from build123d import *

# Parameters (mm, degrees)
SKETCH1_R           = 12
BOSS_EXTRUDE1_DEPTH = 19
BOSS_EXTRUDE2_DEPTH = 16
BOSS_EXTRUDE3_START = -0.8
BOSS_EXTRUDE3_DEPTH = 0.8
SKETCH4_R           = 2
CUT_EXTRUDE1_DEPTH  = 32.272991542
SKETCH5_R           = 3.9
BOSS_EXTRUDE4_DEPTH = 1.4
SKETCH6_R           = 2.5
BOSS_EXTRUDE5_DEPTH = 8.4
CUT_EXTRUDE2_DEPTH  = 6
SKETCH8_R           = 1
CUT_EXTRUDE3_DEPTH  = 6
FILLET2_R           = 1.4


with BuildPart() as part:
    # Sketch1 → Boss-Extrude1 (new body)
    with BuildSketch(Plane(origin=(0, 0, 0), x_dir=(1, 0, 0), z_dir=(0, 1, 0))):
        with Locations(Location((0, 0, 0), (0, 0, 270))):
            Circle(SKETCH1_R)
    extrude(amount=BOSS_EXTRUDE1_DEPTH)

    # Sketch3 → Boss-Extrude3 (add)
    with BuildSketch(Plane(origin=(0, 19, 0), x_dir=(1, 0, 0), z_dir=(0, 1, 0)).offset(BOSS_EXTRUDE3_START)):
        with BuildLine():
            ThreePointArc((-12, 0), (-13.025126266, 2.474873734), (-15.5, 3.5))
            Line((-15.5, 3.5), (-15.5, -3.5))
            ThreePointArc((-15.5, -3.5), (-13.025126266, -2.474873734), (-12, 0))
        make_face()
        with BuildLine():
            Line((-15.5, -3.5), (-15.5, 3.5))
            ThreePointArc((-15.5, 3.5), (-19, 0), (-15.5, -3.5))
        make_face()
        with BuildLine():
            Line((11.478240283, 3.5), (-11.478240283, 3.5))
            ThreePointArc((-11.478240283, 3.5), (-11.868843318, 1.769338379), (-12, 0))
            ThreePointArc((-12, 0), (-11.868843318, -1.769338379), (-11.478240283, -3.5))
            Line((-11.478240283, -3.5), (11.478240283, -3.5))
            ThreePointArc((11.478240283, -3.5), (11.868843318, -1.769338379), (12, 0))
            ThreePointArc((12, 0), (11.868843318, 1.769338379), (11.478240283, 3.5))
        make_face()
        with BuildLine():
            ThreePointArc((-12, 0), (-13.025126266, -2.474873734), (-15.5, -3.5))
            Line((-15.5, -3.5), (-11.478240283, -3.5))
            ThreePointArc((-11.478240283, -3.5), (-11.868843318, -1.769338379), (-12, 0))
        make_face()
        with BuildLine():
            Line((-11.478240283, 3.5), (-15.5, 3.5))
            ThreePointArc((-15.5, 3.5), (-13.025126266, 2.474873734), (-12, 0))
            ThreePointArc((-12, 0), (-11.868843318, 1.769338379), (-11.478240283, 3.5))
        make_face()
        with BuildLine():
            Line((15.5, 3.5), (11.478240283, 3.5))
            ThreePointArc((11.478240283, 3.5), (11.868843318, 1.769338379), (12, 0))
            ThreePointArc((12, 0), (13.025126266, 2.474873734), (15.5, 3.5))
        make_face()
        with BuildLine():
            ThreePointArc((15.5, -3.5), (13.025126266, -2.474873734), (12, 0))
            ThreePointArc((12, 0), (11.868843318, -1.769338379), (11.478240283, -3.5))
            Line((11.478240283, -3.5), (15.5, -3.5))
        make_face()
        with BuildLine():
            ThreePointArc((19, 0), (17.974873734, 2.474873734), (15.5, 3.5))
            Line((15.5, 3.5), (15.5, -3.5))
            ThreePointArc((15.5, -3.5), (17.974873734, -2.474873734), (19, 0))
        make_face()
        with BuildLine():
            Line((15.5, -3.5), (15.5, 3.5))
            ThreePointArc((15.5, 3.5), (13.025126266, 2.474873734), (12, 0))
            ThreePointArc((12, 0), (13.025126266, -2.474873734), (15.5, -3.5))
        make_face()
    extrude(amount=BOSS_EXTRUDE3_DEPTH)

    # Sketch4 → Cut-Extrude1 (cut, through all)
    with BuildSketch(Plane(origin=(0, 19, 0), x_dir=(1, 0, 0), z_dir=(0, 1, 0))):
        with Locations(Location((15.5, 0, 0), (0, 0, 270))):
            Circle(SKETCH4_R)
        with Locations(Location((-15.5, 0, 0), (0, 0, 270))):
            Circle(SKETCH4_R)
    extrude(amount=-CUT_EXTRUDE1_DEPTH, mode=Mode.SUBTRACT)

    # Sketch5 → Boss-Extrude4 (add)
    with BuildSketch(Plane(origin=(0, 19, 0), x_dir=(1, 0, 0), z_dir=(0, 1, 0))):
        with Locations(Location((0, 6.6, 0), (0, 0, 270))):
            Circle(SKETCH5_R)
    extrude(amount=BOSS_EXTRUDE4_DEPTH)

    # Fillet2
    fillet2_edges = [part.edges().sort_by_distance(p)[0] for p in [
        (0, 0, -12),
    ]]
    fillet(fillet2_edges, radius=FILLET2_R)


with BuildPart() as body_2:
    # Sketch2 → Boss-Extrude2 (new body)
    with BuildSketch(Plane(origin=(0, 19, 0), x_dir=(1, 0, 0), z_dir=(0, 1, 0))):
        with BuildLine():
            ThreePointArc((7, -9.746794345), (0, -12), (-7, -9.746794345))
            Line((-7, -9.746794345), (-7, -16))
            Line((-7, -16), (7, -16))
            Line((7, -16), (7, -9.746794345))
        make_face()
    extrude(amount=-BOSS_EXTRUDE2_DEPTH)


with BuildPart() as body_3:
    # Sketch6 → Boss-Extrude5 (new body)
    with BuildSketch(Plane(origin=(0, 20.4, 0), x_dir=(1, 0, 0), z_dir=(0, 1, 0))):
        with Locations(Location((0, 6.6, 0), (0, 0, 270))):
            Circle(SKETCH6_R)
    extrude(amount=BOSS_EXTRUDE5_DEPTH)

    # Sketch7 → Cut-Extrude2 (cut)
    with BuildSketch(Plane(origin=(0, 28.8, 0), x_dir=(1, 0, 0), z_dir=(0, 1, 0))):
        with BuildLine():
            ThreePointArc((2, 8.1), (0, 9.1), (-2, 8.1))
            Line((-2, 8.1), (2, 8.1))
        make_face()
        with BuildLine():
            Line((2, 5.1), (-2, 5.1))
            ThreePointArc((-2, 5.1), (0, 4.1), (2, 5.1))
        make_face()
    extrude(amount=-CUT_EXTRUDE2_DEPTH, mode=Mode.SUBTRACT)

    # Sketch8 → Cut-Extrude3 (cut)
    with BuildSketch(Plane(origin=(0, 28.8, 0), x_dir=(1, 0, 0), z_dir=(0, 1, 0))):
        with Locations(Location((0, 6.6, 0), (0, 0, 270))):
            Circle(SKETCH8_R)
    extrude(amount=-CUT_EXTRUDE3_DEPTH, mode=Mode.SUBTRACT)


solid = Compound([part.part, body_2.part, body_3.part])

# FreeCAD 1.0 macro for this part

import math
import FreeCAD as App
import Part
import Sketcher


def edges_at(feature, points):
    """Names of the edges that pass closest to the given points."""
    edges = feature.Shape.Edges
    near = lambda p: min(range(len(edges)), key=lambda i: edges[i].distToShape(Part.Vertex(*p))[0])
    return sorted({f"Edge{near(p) + 1}" for p in points})

doc = App.newDocument("Part")
body = doc.addObject("PartDesign::Body", "Body")

# Sketch on XZ plane
sketch1 = body.newObject("Sketcher::SketchObject", "Sketch")
sketch1.AttachmentSupport = (doc.getObject("XZ_Plane"), [""])
sketch1.MapMode = "FlatFace"
sketch1.addGeometry(Part.Circle(App.Vector(0, 0, 0), App.Vector(0, 0, 1), 12), False)
sketch1.addConstraint(Sketcher.Constraint("Coincident", 0, 3, -1, 1))
sketch1.addConstraint(Sketcher.Constraint("Diameter", 0, 24.0))
pad1 = body.newObject("PartDesign::Pad", "Pad")
pad1.Profile = sketch1
pad1.Length = 19
pad1.Reversed = True

# Sketch on XZ plane
sketch2 = body.newObject("Sketcher::SketchObject", "Sketch001")
sketch2.AttachmentSupport = (doc.getObject("XZ_Plane"), [""])
sketch2.MapMode = "FlatFace"
sketch2.AttachmentOffset = App.Placement(App.Vector(0, 0, -18.2), App.Rotation())
sketch2.addGeometry(Part.LineSegment(App.Vector(-15.5, 3.5, 0), App.Vector(15.5, 3.5, 0)), False)
sketch2.addGeometry(Part.ArcOfCircle(Part.Circle(App.Vector(15.5, 0, 0), App.Vector(0, 0, 1), 3.5), math.radians(0), math.radians(90)), False)
sketch2.addGeometry(Part.ArcOfCircle(Part.Circle(App.Vector(15.5, 0, 0), App.Vector(0, 0, 1), 3.5), math.radians(-90), math.radians(0)), False)
sketch2.addGeometry(Part.LineSegment(App.Vector(15.5, -3.5, 0), App.Vector(-15.5, -3.5, 0)), False)
sketch2.addGeometry(Part.ArcOfCircle(Part.Circle(App.Vector(-15.5, 0, 0), App.Vector(0, 0, 1), 3.5), math.radians(90), math.radians(270)), False)
sketch2.addConstraint(Sketcher.Constraint("Tangent", 0, 2, 1, 2))
sketch2.addConstraint(Sketcher.Constraint("Tangent", 1, 1, 2, 2))
sketch2.addConstraint(Sketcher.Constraint("Tangent", 2, 1, 3, 1))
sketch2.addConstraint(Sketcher.Constraint("Tangent", 3, 2, 4, 2))
sketch2.addConstraint(Sketcher.Constraint("Tangent", 4, 1, 0, 1))
sketch2.addConstraint(Sketcher.Constraint("Horizontal", 0))
sketch2.addConstraint(Sketcher.Constraint("Horizontal", 3))
sketch2.addConstraint(Sketcher.Constraint("Equal", 1, 2))
sketch2.addConstraint(Sketcher.Constraint("Symmetric", 1, 3, 4, 3, -1, 1))
sketch2.addConstraint(Sketcher.Constraint("PointOnObject", 1, 1, -1))
sketch2.addConstraint(Sketcher.Constraint("Radius", 1, 3.5))
sketch2.addConstraint(Sketcher.Constraint("DistanceX", 0, 1, 0, 2, 31.0))
pad2 = body.newObject("PartDesign::Pad", "Pad001")
pad2.Profile = sketch2
pad2.Length = 0.8
pad2.Reversed = True

# Sketch on XZ plane
sketch3 = body.newObject("Sketcher::SketchObject", "Sketch002")
sketch3.AttachmentSupport = (doc.getObject("XZ_Plane"), [""])
sketch3.MapMode = "FlatFace"
sketch3.AttachmentOffset = App.Placement(App.Vector(0, 0, -19), App.Rotation())
sketch3.addGeometry(Part.Circle(App.Vector(15.5, 0, 0), App.Vector(0, 0, 1), 2), False)
sketch3.addGeometry(Part.Circle(App.Vector(-15.5, 0, 0), App.Vector(0, 0, 1), 2), False)
sketch3.addConstraint(Sketcher.Constraint("Equal", 0, 1))
sketch3.addConstraint(Sketcher.Constraint("Symmetric", 0, 3, 1, 3, -1, 1))
sketch3.addConstraint(Sketcher.Constraint("PointOnObject", 0, 3, -1))
sketch3.addConstraint(Sketcher.Constraint("Diameter", 0, 4.0))
sketch3.addConstraint(Sketcher.Constraint("DistanceX", 1, 3, 0, 3, 31.0))
pocket1 = body.newObject("PartDesign::Pocket", "Pocket")
pocket1.Profile = sketch3
pocket1.Type = "ThroughAll"
pocket1.Reversed = True

# Sketch on XZ plane
sketch4 = body.newObject("Sketcher::SketchObject", "Sketch003")
sketch4.AttachmentSupport = (doc.getObject("XZ_Plane"), [""])
sketch4.MapMode = "FlatFace"
sketch4.AttachmentOffset = App.Placement(App.Vector(0, 0, -19), App.Rotation())
sketch4.addGeometry(Part.Circle(App.Vector(0, -6.6, 0), App.Vector(0, 0, 1), 3.9), False)
sketch4.addConstraint(Sketcher.Constraint("PointOnObject", 0, 3, -2))
sketch4.addConstraint(Sketcher.Constraint("Diameter", 0, 7.8))
sketch4.addConstraint(Sketcher.Constraint("DistanceY", 0, 3, -1, 1, 6.6))
pad3 = body.newObject("PartDesign::Pad", "Pad002")
pad3.Profile = sketch4
pad3.Length = 1.4
pad3.Reversed = True
doc.recompute()

fillet = body.newObject("PartDesign::Fillet", "Fillet")
fillet.Base = (pad3, edges_at(pad3, [(0, 0, -12)]))
fillet.Radius = 1.4
body2 = doc.addObject("PartDesign::Body", "Body001")

# Sketch on XZ plane
sketch5 = body2.newObject("Sketcher::SketchObject", "Sketch004")
sketch5.AttachmentSupport = (doc.getObject("XZ_Plane001"), [""])
sketch5.MapMode = "FlatFace"
sketch5.AttachmentOffset = App.Placement(App.Vector(0, 0, -19), App.Rotation())
sketch5.addGeometry(Part.ArcOfCircle(Part.Circle(App.Vector(0, 0, 0), App.Vector(0, 0, 1), 12), math.radians(54), math.radians(126)), False)
sketch5.addGeometry(Part.LineSegment(App.Vector(-7, 10, 0), App.Vector(-7, 16, 0)), False)
sketch5.addGeometry(Part.LineSegment(App.Vector(-7, 16, 0), App.Vector(7, 16, 0)), False)
sketch5.addGeometry(Part.LineSegment(App.Vector(7, 16, 0), App.Vector(7, 10, 0)), False)
sketch5.addConstraint(Sketcher.Constraint("Coincident", 0, 2, 1, 1))
sketch5.addConstraint(Sketcher.Constraint("Coincident", 1, 2, 2, 1))
sketch5.addConstraint(Sketcher.Constraint("Coincident", 2, 2, 3, 1))
sketch5.addConstraint(Sketcher.Constraint("Coincident", 3, 2, 0, 1))
sketch5.addConstraint(Sketcher.Constraint("Vertical", 1))
sketch5.addConstraint(Sketcher.Constraint("Horizontal", 2))
sketch5.addConstraint(Sketcher.Constraint("Vertical", 3))
sketch5.addConstraint(Sketcher.Constraint("Coincident", 0, 3, -1, 1))
sketch5.addConstraint(Sketcher.Constraint("Horizontal", 0, 2, 3, 2))
sketch5.addConstraint(Sketcher.Constraint("Radius", 0, 12.0))
sketch5.addConstraint(Sketcher.Constraint("DistanceX", 2, 1, 2, 2, 14.0))
sketch5.addConstraint(Sketcher.Constraint("DistanceY", -1, 1, 1, 2, 16.0))
pad4 = body2.newObject("PartDesign::Pad", "Pad003")
pad4.Profile = sketch5
pad4.Length = 16
body3 = doc.addObject("PartDesign::Body", "Body002")

# Sketch on XZ plane
sketch6 = body3.newObject("Sketcher::SketchObject", "Sketch005")
sketch6.AttachmentSupport = (doc.getObject("XZ_Plane002"), [""])
sketch6.MapMode = "FlatFace"
sketch6.AttachmentOffset = App.Placement(App.Vector(0, 0, -20.4), App.Rotation())
sketch6.addGeometry(Part.Circle(App.Vector(0, -6.6, 0), App.Vector(0, 0, 1), 2.5), False)
sketch6.addConstraint(Sketcher.Constraint("PointOnObject", 0, 3, -2))
sketch6.addConstraint(Sketcher.Constraint("Diameter", 0, 5.0))
sketch6.addConstraint(Sketcher.Constraint("DistanceY", 0, 3, -1, 1, 6.6))
pad5 = body3.newObject("PartDesign::Pad", "Pad004")
pad5.Profile = sketch6
pad5.Length = 8.4
pad5.Reversed = True

# Sketch on XZ plane
sketch7 = body3.newObject("Sketcher::SketchObject", "Sketch006")
sketch7.AttachmentSupport = (doc.getObject("XZ_Plane002"), [""])
sketch7.MapMode = "FlatFace"
sketch7.AttachmentOffset = App.Placement(App.Vector(0, 0, -28.8), App.Rotation())
sketch7.addGeometry(Part.ArcOfCircle(Part.Circle(App.Vector(0, -6.6, 0), App.Vector(0, 0, 1), 2.5), math.radians(-143), math.radians(-37)), False)
sketch7.addGeometry(Part.LineSegment(App.Vector(-2, -8.1, 0), App.Vector(2, -8.1, 0)), False)
sketch7.addGeometry(Part.LineSegment(App.Vector(2, -5.1, 0), App.Vector(-2, -5.1, 0)), False)
sketch7.addGeometry(Part.ArcOfCircle(Part.Circle(App.Vector(0, -6.6, 0), App.Vector(0, 0, 1), 2.5), math.radians(37), math.radians(143)), False)
sketch7.addConstraint(Sketcher.Constraint("Coincident", 0, 1, 1, 1))
sketch7.addConstraint(Sketcher.Constraint("Coincident", 1, 2, 0, 2))
sketch7.addConstraint(Sketcher.Constraint("Coincident", 2, 1, 3, 1))
sketch7.addConstraint(Sketcher.Constraint("Coincident", 3, 2, 2, 2))
sketch7.addConstraint(Sketcher.Constraint("Horizontal", 1))
sketch7.addConstraint(Sketcher.Constraint("Horizontal", 2))
sketch7.addConstraint(Sketcher.Constraint("Coincident", 3, 3, 0, 3))
sketch7.addConstraint(Sketcher.Constraint("Equal", 0, 3))
sketch7.addConstraint(Sketcher.Constraint("PointOnObject", 0, 3, -2))
sketch7.addConstraint(Sketcher.Constraint("Vertical", 1, 2, 2, 1))
sketch7.addConstraint(Sketcher.Constraint("Radius", 0, 2.5))
sketch7.addConstraint(Sketcher.Constraint("DistanceX", 1, 1, 1, 2, 4.0))
sketch7.addConstraint(Sketcher.Constraint("DistanceY", 0, 3, -1, 1, 6.6))
pocket2 = body3.newObject("PartDesign::Pocket", "Pocket001")
pocket2.Profile = sketch7
pocket2.Length = 6
pocket2.Reversed = True

# Sketch on XZ plane
sketch8 = body3.newObject("Sketcher::SketchObject", "Sketch007")
sketch8.AttachmentSupport = (doc.getObject("XZ_Plane002"), [""])
sketch8.MapMode = "FlatFace"
sketch8.AttachmentOffset = App.Placement(App.Vector(0, 0, -28.8), App.Rotation())
sketch8.addGeometry(Part.Circle(App.Vector(0, -6.6, 0), App.Vector(0, 0, 1), 1), False)
sketch8.addConstraint(Sketcher.Constraint("PointOnObject", 0, 3, -2))
sketch8.addConstraint(Sketcher.Constraint("Diameter", 0, 2.0))
sketch8.addConstraint(Sketcher.Constraint("DistanceY", 0, 3, -1, 1, 6.6))
pocket3 = body3.newObject("PartDesign::Pocket", "Pocket002")
pocket3.Profile = sketch8
pocket3.Length = 6
pocket3.Reversed = True

doc.recompute()
